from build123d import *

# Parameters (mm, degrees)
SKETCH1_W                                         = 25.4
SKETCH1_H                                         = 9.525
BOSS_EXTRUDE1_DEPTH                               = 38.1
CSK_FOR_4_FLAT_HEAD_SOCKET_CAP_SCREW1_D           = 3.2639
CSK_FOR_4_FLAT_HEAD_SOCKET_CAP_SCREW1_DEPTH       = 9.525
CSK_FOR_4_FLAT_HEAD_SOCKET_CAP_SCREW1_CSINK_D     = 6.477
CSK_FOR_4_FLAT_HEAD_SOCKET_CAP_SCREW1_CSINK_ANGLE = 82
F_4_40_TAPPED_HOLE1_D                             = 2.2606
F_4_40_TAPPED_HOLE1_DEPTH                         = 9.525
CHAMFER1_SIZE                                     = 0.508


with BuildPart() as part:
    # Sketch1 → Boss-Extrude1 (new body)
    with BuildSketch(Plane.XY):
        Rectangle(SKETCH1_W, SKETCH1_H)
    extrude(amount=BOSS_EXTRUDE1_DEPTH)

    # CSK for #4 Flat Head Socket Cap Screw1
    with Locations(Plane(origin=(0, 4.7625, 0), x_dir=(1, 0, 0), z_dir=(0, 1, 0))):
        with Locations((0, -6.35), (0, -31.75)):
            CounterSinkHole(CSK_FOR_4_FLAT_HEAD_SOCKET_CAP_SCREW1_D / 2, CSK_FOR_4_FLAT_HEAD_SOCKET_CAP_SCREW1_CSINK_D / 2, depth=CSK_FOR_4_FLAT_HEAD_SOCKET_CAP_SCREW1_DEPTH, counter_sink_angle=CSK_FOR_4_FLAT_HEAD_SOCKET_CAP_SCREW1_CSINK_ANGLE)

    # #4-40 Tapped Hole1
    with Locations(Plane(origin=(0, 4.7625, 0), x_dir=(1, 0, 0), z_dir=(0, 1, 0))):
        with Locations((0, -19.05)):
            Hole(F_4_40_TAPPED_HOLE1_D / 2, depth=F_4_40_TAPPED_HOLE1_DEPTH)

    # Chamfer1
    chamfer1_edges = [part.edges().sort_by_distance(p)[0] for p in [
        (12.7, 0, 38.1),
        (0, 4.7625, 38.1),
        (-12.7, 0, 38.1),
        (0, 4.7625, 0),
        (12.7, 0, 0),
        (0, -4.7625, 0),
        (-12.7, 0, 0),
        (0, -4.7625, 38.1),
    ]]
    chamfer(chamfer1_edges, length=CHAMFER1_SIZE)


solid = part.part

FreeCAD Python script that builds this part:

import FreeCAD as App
import Part
import Sketcher
from FreeCAD import Vector
Q = App.Units.Quantity


def edges_at(feature, points):
    """Names of the edges that pass closest to the given points."""
    edges = feature.Shape.Edges
    near = lambda p: min(range(len(edges)), key=lambda i: edges[i].distToShape(Part.Vertex(*p))[0])
    return sorted({f"Edge{near(p) + 1}" for p in points})


def add_polygon(sketch, points):
    """Adds a closed chain of lines whose ends are joined by coincident constraints."""
    first, n = sketch.GeometryCount, len(points)
    for a, b in zip(points, points[1:] + points[:1]):
        sketch.addGeometry(Part.LineSegment(App.Vector(*a, 0), App.Vector(*b, 0)), False)
    for i in range(n):
        sketch.addConstraint(Sketcher.Constraint("Coincident", first + i, 2, first + (i + 1) % n, 1))

doc = App.newDocument("Part")
body = doc.addObject("PartDesign::Body", "Body")

sketch1 = doc.addObject("Sketcher::SketchObject", "Sketch")
body.addObject(sketch1)
sketch1.AttachmentSupport = (doc.XY_Plane, [""])
sketch1.MapMode = "FlatFace"
add_polygon(sketch1, [(-13, 5), (-13, -5), (13, -5), (13, 5)])
sketch1.addConstraint(Sketcher.Constraint("Vertical", 0))
sketch1.addConstraint(Sketcher.Constraint("Horizontal", 1))
sketch1.addConstraint(Sketcher.Constraint("Vertical", 2))
sketch1.addConstraint(Sketcher.Constraint("Horizontal", 3))
sketch1.addConstraint(Sketcher.Constraint("Symmetric", 0, 2, 2, 2, -1, 1))
sketch1.addConstraint(Sketcher.Constraint("DistanceX", 1, 1, 1, 2, Q("1 in")))
sketch1.addConstraint(Sketcher.Constraint("DistanceY", 0, 2, 0, 1, Q("0.375 in")))
pad1 = doc.addObject("PartDesign::Pad", "Pad")
body.addObject(pad1)
pad1.Profile = sketch1
pad1.Length = Q("1.5 in")

sketch2 = doc.addObject("Sketcher::SketchObject", "Sketch001")
body.addObject(sketch2)
sketch2.AttachmentSupport = (doc.XZ_Plane, [""])
sketch2.MapMode = "FlatFace"
sketch2.AttachmentOffset = App.Placement(Vector(0, 0, -0.1875 * 25.4), App.Rotation())
sketch2.addGeometry(Part.Circle(Vector(0, 6.3, 0), Vector(0, 0, 1), 1.6), False)
sketch2.addGeometry(Part.Circle(Vector(0, 31.8, 0), Vector(0, 0, 1), 1.6), False)
sketch2.addConstraint(Sketcher.Constraint("Equal", 0, 1))
sketch2.addConstraint(Sketcher.Constraint("PointOnObject", 0, 3, -2))
sketch2.addConstraint(Sketcher.Constraint("PointOnObject", 1, 3, -2))
sketch2.addConstraint(Sketcher.Constraint("DistanceY", 0, 3, 1, 3, Q("1 in")))
sketch2.addConstraint(Sketcher.Constraint("Diameter", 0, Q("0.1285 in")))
sketch2.addConstraint(Sketcher.Constraint("DistanceY", -1, 1, 0, 3, Q("0.25 in")))
doc.recompute()
hole = doc.addObject("PartDesign::Hole", "Hole")
body.addObject(hole)
hole.Profile = sketch2
hole.ThreadType = "None"
hole.Diameter = Q("0.1285 in")
hole.DepthType = "Dimension"
hole.Depth = Q("0.375 in")
hole.DrillPoint = "Flat"
hole.HoleCutType = "Countersink"
hole.HoleCutDiameter = Q("0.255 in")
hole.HoleCutCountersinkAngle = 82
hole.Reversed = True

sketch3 = doc.addObject("Sketcher::SketchObject", "Sketch002")
body.addObject(sketch3)
sketch3.AttachmentSupport = (doc.XZ_Plane, [""])
sketch3.MapMode = "FlatFace"
sketch3.AttachmentOffset = App.Placement(Vector(0, 0, -0.1875 * 25.4), App.Rotation())
sketch3.addGeometry(Part.Circle(Vector(0, 19.1, 0), Vector(0, 0, 1), 1.1), False)
sketch3.addConstraint(Sketcher.Constraint("PointOnObject", 0, 3, -2))
sketch3.addConstraint(Sketcher.Constraint("Diameter", 0, Q("0.089 in")))
sketch3.addConstraint(Sketcher.Constraint("DistanceY", -1, 1, 0, 3, Q("0.75 in")))
doc.recompute()
hole2 = doc.addObject("PartDesign::Hole", "Hole001")
body.addObject(hole2)
hole2.Profile = sketch3
hole2.ThreadType = "None"
hole2.Diameter = Q("0.089 in")
hole2.DepthType = "Dimension"
hole2.Depth = Q("0.375 in")
hole2.DrillPoint = "Flat"
hole2.Reversed = True
doc.recompute()

chamfer = doc.addObject("PartDesign::Chamfer", "Chamfer")
body.addObject(chamfer)
chamfer.Base = (hole2, edges_at(hole2, [
    (12.7, 0, 38.1),
    (0, 4.763, 38.1),
    (-12.7, 0, 38.1),
    (0, 4.763, 0),
    (12.7, 0, 0),
    (0, -4.763, 0),
    (-12.7, 0, 0),
    (0, -4.763, 38.1),
]))
chamfer.Size = Q("0.02 in")

doc.recompute()
